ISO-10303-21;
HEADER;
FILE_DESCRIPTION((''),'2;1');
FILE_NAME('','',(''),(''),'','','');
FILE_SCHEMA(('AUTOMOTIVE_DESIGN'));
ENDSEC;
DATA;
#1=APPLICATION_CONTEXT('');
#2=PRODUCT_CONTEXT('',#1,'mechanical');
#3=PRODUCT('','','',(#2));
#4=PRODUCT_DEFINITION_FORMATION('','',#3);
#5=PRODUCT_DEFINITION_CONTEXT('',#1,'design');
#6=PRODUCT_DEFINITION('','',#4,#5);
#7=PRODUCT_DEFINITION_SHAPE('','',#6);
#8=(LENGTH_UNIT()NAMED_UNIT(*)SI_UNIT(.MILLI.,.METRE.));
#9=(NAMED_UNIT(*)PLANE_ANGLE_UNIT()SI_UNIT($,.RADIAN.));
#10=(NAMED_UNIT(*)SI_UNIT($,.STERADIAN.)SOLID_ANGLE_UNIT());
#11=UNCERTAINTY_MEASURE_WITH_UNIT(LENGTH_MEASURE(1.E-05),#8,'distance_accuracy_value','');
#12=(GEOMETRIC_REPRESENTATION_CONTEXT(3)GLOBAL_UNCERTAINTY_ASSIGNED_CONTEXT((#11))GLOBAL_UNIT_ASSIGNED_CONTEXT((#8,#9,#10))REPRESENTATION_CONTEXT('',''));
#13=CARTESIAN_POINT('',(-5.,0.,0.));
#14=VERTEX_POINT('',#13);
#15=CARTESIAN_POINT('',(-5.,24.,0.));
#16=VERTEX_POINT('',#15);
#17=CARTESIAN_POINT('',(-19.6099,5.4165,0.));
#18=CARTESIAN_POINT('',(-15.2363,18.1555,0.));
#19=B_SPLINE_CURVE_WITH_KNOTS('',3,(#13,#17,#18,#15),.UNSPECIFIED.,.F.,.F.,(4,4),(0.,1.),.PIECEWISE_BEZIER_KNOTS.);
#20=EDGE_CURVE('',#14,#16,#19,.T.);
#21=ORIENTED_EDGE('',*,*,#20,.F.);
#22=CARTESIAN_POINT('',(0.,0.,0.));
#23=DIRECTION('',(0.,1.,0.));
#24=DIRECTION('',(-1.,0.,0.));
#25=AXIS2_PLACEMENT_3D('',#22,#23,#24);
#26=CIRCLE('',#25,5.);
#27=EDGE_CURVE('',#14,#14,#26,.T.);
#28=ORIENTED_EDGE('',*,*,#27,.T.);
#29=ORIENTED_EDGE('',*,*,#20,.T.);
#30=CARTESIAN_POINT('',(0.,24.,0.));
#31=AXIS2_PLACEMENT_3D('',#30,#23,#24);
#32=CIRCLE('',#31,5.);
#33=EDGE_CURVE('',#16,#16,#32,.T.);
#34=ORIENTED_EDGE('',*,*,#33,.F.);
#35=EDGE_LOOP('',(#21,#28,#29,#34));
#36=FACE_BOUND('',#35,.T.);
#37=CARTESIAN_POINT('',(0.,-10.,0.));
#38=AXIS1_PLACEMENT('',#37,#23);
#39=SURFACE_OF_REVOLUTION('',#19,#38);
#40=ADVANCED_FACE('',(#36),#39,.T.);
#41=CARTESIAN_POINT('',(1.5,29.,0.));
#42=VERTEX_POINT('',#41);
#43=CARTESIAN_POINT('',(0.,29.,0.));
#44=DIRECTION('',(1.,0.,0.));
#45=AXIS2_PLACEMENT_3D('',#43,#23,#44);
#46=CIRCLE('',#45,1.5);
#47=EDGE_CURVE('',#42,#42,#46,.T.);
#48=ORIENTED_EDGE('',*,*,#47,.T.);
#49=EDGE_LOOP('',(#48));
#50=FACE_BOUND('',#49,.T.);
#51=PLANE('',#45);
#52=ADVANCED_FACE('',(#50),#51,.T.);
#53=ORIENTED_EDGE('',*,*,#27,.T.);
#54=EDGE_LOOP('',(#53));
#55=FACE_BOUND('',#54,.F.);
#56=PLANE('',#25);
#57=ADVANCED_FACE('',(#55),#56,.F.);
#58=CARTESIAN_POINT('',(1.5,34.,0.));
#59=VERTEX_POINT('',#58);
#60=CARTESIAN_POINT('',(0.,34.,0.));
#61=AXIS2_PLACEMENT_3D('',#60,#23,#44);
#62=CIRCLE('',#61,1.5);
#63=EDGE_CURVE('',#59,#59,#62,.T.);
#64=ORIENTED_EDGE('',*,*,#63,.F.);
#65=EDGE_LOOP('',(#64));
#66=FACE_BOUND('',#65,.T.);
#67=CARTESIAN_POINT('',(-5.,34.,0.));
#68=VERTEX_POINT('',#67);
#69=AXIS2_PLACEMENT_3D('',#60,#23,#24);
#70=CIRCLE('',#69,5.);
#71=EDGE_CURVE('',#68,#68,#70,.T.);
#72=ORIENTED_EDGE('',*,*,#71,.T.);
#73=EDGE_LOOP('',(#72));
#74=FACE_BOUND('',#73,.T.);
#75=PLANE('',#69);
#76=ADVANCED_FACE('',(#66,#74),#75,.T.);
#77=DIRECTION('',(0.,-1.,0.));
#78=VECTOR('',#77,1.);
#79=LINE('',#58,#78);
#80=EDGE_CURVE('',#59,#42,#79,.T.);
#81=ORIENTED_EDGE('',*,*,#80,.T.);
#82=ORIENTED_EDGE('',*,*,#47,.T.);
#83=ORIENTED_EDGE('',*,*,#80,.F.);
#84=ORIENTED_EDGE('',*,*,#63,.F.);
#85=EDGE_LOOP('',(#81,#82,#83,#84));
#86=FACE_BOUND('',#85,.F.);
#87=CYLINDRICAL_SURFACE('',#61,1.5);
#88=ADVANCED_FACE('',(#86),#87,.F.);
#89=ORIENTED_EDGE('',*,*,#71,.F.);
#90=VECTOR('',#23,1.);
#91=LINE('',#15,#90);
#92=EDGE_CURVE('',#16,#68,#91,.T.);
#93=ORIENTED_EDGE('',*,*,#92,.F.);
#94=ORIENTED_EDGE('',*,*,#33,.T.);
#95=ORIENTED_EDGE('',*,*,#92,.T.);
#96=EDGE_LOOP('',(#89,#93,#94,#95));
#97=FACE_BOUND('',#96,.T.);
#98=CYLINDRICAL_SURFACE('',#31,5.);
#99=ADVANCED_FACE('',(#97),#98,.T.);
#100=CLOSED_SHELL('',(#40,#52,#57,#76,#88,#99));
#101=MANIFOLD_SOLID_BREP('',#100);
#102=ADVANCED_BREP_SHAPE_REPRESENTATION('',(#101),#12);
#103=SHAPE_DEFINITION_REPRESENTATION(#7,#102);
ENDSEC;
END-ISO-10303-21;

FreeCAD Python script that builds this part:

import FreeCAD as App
import Part
import Sketcher

doc = App.newDocument("Part")
body = doc.addObject("PartDesign::Body", "Body")

sketch1 = body.newObject("Sketcher::SketchObject", "Sketch")
sketch1.AttachmentSupport = (doc.getObject("XY_Plane"), [""])
sketch1.MapMode = "FlatFace"
sketch1.addGeometry(Part.BSplineCurve([App.Vector(-5, 0, 0), App.Vector(-19.6099, 5.4165, 0), App.Vector(-15.2363, 18.1555, 0), App.Vector(-5, 24, 0)], [4, 4], [0, 1], False, 3, [1, 1, 1, 1], False), False)
sketch1.addGeometry(Part.LineSegment(App.Vector(-5, 0, 0), App.Vector(0, 0, 0)), False)
sketch1.addGeometry(Part.LineSegment(App.Vector(0, 0, 0), App.Vector(0, 34, 0)), False)
sketch1.addGeometry(Part.LineSegment(App.Vector(0, 34, 0), App.Vector(-5, 34, 0)), False)
sketch1.addGeometry(Part.LineSegment(App.Vector(-5, 34, 0), App.Vector(-5, 24, 0)), False)
sketch1.addConstraint(Sketcher.Constraint("Block", 0))
sketch1.addConstraint(Sketcher.Constraint("Coincident", 0, 1, 1, 1))
sketch1.addConstraint(Sketcher.Constraint("Coincident", 1, 2, 2, 1))
sketch1.addConstraint(Sketcher.Constraint("Coincident", 2, 2, 3, 1))
sketch1.addConstraint(Sketcher.Constraint("Coincident", 3, 2, 4, 1))
sketch1.addConstraint(Sketcher.Constraint("Coincident", 4, 2, 0, 2))
sketch1.addConstraint(Sketcher.Constraint("Horizontal", 1))
sketch1.addConstraint(Sketcher.Constraint("Vertical", 2))
sketch1.addConstraint(Sketcher.Constraint("Horizontal", 3))
sketch1.addConstraint(Sketcher.Constraint("Vertical", 4))
sketch1.addConstraint(Sketcher.Constraint("PointOnObject", 2, 2, -2))
sketch1.addConstraint(Sketcher.Constraint("DistanceY", 4, 2, 4, 1, 10.0))
revolution = body.newObject("PartDesign::Revolution", "Revolution")
revolution.Profile = sketch1
revolution.ReferenceAxis = (sketch1, ["V_Axis"])
revolution.Angle = 360

sketch2 = body.newObject("Sketcher::SketchObject", "Sketch001")
sketch2.AttachmentSupport = (doc.getObject("XZ_Plane"), [""])
sketch2.MapMode = "FlatFace"
sketch2.AttachmentOffset = App.Placement(App.Vector(0, 0, -34), App.Rotation())
sketch2.addGeometry(Part.Circle(App.Vector(0, 0, 0), App.Vector(0, 0, 1), 1.5), False)
sketch2.addConstraint(Sketcher.Constraint("Coincident", 0, 3, -1, 1))
sketch2.addConstraint(Sketcher.Constraint("Diameter", 0, 3.0))
pocket1 = body.newObject("PartDesign::Pocket", "Pocket")
pocket1.Profile = sketch2
pocket1.Length = 5
pocket1.Reversed = True

doc.recompute()
